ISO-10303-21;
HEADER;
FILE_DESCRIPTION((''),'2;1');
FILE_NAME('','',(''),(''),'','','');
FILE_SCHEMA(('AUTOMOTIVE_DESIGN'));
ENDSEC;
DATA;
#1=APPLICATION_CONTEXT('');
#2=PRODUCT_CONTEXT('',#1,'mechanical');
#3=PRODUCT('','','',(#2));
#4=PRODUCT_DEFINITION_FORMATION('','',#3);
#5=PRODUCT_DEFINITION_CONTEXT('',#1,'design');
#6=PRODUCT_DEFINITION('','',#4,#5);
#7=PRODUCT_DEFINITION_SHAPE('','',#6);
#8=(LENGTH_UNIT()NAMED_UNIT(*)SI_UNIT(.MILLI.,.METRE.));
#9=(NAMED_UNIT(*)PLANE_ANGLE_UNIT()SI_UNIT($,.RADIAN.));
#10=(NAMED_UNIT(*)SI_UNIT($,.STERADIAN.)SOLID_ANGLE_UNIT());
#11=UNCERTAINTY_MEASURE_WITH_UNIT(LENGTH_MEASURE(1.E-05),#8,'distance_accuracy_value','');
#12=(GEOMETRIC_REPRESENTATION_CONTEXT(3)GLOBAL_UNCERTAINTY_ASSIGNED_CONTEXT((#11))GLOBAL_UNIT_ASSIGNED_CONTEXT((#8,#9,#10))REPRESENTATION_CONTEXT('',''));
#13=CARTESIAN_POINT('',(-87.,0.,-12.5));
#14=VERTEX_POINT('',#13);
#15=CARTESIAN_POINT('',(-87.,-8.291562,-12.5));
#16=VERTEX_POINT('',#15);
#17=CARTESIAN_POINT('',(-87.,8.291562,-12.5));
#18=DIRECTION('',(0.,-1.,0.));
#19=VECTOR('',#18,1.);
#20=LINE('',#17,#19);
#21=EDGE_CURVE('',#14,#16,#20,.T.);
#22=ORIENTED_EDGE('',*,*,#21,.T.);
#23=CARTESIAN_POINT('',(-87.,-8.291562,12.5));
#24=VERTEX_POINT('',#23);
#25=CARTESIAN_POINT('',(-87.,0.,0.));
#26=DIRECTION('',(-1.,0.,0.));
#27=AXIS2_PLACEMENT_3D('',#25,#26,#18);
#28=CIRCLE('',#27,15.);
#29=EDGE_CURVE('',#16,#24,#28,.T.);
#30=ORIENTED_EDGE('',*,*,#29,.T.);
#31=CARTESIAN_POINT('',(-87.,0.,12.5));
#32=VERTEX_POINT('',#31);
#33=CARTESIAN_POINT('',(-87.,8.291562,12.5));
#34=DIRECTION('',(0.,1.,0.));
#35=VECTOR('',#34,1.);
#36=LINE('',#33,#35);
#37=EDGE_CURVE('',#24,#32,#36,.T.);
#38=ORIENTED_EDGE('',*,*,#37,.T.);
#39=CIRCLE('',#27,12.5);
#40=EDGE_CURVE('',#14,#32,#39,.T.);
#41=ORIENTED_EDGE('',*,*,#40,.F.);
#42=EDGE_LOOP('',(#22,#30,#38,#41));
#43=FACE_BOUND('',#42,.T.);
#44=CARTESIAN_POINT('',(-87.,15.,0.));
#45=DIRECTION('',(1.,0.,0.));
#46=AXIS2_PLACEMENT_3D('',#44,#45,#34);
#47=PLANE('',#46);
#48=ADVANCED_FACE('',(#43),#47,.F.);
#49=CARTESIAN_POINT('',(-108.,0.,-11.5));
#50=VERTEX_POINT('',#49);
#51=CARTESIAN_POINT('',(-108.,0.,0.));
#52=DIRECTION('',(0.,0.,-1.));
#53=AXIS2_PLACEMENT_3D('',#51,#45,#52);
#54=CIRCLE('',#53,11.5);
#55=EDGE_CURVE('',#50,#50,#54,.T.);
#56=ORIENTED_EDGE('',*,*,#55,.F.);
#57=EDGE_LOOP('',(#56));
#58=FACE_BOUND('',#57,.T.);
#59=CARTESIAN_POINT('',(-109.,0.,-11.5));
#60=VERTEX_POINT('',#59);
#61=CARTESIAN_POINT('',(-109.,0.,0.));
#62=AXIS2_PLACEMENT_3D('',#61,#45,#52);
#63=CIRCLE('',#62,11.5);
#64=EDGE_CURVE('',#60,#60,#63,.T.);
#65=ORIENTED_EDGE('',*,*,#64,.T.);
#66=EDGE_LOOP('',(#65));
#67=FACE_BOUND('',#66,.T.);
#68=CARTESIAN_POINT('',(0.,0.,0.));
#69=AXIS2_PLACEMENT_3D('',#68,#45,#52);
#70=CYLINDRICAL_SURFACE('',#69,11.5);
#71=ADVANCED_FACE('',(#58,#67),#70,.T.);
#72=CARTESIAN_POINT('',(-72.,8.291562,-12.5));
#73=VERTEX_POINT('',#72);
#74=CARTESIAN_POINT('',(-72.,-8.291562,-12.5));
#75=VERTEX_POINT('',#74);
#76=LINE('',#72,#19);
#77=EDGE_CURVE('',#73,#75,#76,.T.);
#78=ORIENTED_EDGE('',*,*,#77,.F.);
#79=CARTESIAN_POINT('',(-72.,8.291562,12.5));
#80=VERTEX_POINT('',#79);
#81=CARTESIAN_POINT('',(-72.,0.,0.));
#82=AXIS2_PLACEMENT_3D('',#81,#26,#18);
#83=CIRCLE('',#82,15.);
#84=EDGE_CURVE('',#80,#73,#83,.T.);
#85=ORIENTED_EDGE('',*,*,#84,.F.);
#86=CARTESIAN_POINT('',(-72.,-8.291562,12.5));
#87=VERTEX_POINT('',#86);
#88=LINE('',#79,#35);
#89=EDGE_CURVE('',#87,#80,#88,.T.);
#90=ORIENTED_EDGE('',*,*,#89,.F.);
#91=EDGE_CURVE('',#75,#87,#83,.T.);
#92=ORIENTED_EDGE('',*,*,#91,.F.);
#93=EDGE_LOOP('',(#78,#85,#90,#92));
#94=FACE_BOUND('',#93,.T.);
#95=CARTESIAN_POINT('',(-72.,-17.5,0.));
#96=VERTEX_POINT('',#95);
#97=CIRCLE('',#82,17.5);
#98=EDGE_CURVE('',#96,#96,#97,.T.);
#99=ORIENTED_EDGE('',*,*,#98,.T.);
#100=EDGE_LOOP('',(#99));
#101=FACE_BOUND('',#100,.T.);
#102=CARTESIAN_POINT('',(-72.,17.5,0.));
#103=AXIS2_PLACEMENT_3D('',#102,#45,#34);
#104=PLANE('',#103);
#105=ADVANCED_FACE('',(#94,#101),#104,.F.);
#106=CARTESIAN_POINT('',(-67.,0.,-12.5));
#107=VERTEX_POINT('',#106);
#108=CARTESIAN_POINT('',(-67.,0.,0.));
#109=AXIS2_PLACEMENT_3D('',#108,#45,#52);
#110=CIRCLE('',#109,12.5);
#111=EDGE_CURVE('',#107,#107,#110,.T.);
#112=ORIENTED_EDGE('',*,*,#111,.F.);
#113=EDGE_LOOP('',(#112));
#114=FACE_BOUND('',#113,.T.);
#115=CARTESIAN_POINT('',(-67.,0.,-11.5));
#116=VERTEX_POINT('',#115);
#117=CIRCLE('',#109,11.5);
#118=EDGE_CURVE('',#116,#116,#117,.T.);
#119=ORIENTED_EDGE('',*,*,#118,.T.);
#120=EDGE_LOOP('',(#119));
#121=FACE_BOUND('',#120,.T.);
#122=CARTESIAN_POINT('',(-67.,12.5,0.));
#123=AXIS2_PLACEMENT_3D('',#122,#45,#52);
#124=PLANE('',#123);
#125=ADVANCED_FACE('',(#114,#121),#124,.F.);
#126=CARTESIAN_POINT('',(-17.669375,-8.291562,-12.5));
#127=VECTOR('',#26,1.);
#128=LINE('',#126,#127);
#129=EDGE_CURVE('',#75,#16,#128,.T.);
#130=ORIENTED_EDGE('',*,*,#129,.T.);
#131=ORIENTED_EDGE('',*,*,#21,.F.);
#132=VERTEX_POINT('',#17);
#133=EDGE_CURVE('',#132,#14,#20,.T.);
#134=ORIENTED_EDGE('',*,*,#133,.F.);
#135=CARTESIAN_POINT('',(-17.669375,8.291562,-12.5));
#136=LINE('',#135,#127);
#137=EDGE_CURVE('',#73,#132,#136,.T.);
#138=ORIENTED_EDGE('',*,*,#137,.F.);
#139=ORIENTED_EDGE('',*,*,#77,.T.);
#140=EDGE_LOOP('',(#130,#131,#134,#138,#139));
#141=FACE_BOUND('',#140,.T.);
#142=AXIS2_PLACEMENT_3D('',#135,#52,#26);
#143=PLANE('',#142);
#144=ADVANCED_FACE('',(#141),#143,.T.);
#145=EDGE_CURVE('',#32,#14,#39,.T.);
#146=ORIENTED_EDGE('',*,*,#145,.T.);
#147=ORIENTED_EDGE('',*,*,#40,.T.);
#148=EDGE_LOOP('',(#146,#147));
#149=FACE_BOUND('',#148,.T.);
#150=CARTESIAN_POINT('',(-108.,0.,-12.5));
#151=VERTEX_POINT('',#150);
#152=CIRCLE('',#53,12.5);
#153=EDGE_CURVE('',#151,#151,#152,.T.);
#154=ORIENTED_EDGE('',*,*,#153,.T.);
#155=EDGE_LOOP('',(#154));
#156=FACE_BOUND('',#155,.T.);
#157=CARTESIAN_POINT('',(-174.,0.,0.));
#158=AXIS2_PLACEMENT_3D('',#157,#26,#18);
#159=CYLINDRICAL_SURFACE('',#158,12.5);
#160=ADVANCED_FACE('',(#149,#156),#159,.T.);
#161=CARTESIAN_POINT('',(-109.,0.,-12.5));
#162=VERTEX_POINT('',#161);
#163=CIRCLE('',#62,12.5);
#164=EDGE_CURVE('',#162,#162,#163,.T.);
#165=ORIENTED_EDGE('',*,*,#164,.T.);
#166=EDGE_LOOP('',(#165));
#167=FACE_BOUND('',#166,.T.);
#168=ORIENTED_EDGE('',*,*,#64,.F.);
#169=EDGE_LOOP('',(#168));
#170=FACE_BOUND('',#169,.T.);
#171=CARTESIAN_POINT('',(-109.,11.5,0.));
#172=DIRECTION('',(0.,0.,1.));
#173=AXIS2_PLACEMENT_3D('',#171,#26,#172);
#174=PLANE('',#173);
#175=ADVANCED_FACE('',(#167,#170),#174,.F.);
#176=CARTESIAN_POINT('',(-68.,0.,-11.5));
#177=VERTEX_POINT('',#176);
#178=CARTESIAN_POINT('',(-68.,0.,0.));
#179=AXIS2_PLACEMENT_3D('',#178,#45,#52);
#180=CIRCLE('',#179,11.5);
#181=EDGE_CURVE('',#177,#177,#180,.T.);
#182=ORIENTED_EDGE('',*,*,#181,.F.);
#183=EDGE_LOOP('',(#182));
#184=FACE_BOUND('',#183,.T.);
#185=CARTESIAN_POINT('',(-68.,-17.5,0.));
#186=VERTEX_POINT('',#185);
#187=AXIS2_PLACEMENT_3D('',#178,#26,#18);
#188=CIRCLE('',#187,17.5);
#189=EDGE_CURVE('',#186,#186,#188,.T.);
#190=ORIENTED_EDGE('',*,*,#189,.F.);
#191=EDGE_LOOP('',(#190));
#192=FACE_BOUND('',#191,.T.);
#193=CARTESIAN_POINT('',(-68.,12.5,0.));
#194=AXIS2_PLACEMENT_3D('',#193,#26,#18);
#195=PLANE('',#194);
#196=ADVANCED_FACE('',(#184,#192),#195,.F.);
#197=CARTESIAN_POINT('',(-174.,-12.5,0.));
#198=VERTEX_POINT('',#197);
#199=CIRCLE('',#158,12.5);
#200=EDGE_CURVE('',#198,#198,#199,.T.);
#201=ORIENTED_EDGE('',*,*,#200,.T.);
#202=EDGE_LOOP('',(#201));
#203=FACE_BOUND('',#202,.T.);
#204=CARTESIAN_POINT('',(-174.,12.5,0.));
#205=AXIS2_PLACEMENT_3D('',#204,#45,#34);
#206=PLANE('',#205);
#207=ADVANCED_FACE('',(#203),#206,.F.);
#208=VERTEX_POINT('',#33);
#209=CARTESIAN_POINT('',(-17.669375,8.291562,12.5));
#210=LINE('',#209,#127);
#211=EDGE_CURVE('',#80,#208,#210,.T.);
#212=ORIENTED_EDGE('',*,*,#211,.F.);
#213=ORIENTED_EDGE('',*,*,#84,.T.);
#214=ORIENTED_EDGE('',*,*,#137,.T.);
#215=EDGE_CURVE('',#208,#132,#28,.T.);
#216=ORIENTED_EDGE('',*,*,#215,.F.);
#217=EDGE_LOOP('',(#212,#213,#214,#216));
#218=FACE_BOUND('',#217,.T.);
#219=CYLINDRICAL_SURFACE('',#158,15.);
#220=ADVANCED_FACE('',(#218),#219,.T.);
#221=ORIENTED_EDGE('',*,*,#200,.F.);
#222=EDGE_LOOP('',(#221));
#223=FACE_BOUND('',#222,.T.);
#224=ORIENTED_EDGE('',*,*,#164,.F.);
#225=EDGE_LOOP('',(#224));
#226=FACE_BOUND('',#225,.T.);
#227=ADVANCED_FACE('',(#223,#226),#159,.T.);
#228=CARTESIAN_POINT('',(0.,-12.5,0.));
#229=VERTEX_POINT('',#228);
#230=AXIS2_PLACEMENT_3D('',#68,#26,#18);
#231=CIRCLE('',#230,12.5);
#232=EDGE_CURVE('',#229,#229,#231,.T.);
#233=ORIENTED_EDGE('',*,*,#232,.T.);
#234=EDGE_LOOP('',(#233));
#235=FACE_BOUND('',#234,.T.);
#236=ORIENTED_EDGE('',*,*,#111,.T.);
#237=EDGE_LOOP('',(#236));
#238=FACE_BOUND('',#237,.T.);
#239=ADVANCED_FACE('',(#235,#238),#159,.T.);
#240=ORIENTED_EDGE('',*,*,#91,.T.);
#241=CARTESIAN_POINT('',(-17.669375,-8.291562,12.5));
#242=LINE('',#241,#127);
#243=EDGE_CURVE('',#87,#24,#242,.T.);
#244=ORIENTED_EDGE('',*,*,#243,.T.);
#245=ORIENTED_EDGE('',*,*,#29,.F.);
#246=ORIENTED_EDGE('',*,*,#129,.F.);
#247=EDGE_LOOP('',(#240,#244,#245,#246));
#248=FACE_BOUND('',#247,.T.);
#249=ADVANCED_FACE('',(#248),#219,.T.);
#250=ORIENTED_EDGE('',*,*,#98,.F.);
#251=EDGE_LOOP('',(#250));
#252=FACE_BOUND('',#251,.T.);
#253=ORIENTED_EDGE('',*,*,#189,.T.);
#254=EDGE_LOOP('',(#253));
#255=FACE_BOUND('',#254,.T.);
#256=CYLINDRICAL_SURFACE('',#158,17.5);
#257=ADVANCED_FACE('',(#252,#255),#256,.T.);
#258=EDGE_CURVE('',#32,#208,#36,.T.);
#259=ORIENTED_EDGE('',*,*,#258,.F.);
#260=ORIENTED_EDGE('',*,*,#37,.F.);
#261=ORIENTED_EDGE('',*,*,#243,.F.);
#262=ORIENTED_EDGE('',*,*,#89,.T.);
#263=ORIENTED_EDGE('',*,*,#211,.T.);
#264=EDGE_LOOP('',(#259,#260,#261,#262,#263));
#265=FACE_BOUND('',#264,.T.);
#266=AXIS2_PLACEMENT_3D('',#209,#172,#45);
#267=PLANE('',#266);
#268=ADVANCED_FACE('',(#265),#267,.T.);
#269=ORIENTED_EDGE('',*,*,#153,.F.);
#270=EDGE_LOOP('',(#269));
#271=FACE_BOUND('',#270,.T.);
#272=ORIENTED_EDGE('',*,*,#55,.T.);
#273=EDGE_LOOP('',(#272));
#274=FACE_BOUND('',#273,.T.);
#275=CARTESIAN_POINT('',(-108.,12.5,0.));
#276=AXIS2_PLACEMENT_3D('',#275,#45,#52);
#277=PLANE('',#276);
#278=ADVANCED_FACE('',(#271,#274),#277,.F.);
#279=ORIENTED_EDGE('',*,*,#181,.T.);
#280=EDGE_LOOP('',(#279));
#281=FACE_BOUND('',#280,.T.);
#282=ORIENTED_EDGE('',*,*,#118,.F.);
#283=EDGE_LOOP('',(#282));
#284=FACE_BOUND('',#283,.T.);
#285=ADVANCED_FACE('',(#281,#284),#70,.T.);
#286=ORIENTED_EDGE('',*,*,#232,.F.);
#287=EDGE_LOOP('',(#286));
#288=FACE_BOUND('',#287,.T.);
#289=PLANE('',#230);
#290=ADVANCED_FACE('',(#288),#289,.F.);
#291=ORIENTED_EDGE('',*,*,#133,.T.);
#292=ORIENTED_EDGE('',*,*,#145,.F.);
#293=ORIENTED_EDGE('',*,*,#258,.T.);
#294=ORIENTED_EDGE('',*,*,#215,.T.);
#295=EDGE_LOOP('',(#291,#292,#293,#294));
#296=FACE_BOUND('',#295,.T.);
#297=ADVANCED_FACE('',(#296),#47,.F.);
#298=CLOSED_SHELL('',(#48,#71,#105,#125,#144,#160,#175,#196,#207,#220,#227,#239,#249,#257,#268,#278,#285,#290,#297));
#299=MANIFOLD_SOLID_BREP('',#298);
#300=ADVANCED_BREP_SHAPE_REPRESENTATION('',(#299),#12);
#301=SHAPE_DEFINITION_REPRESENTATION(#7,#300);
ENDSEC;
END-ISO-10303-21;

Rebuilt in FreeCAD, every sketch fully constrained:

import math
import FreeCAD as App
import Part
import Sketcher
from FreeCAD import Vector
Q = App.Units.Quantity


def add_polygon(sketch, points):
    """Adds a closed chain of lines whose ends are joined by coincident constraints."""
    first, n = sketch.GeometryCount, len(points)
    for a, b in zip(points, points[1:] + points[:1]):
        sketch.addGeometry(Part.LineSegment(App.Vector(*a, 0), App.Vector(*b, 0)), False)
    for i in range(n):
        sketch.addConstraint(Sketcher.Constraint("Coincident", first + i, 2, first + (i + 1) % n, 1))

doc = App.newDocument("Part")
body = doc.addObject("PartDesign::Body", "Body")

sketch1 = body.newObject("Sketcher::SketchObject", "Sketch")
sketch1.AttachmentSupport = (doc.getObject("XY_Plane"), [""])
sketch1.MapMode = "FlatFace"
add_polygon(sketch1, [(0, 0), (0, 12.5), (-68, 12.5), (-68, 17.5), (-72, 17.5), (-72, 15), (-87, 15), (-87, 12.5), (-174, 12.5), (-174, 0)])
sketch1.addConstraint([
    Sketcher.Constraint("Vertical", 0),
    Sketcher.Constraint("Horizontal", 1),
    Sketcher.Constraint("Vertical", 2),
    Sketcher.Constraint("Horizontal", 3),
    Sketcher.Constraint("Vertical", 4),
    Sketcher.Constraint("Horizontal", 5),
    Sketcher.Constraint("Vertical", 6),
    Sketcher.Constraint("Horizontal", 7),
    Sketcher.Constraint("Vertical", 8),
    Sketcher.Constraint("Horizontal", 9),
    Sketcher.Constraint("Coincident", 9, 2, -1, 1),
    Sketcher.Constraint("Horizontal", 1, 2, 6, 2),
    Sketcher.Constraint("Equal", 4, 6),
    Sketcher.Constraint("DistanceX", 1, 2, 1, 1, Q("68 mm")),
    Sketcher.Constraint("DistanceX", 3, 2, 3, 1, Q("4 mm")),
    Sketcher.Constraint("DistanceX", 5, 2, 5, 1, Q("15 mm")),
    Sketcher.Constraint("DistanceX", 7, 2, 7, 1, Q("87 mm")),
    Sketcher.Constraint("DistanceY", 2, 1, 2, 2, Q("5 mm")),
    Sketcher.Constraint("DistanceY", 0, 1, 0, 2, Q("12.5 mm")),
])
revolution = body.newObject("PartDesign::Revolution", "Revolution")
revolution.Profile = sketch1
revolution.ReferenceAxis = (sketch1, ["H_Axis"])
revolution.Angle = 360

sketch2 = body.newObject("Sketcher::SketchObject", "Sketch001")
sketch2.AttachmentSupport = (doc.getObject("XY_Plane"), [""])
sketch2.MapMode = "FlatFace"
add_polygon(sketch2, [(-68, 12.5), (-68, 11.5), (-67, 11.5), (-67, 12.5)])
add_polygon(sketch2, [(-109, 12.5), (-109, 11.5), (-108, 11.5), (-108, 12.5)])
sketch2.addConstraint([
    Sketcher.Constraint("Vertical", 0),
    Sketcher.Constraint("Horizontal", 1),
    Sketcher.Constraint("Vertical", 2),
    Sketcher.Constraint("Horizontal", 3),
    Sketcher.Constraint("Vertical", 4),
    Sketcher.Constraint("Horizontal", 5),
    Sketcher.Constraint("Vertical", 6),
    Sketcher.Constraint("Horizontal", 7),
    Sketcher.Constraint("Horizontal", 1, 2, 4, 2),
    Sketcher.Constraint("Horizontal", 3, 2, 6, 2),
    Sketcher.Constraint("Equal", 3, 5),
    Sketcher.Constraint("Equal", 7, 0),
    Sketcher.Constraint("DistanceX", 1, 1, 1, 2, Q("1 mm")),
    Sketcher.Constraint("DistanceX", 0, 2, -1, 1, Q("68 mm")),
    Sketcher.Constraint("DistanceX", 4, 2, -1, 1, Q("109 mm")),
    Sketcher.Constraint("DistanceY", -1, 1, 0, 2, Q("11.5 mm")),
])
groove = body.newObject("PartDesign::Groove", "Groove")
groove.Profile = sketch2
groove.ReferenceAxis = (sketch2, ["H_Axis"])
groove.Angle = 360

sketch3 = body.newObject("Sketcher::SketchObject", "Sketch002")
sketch3.AttachmentSupport = (doc.getObject("YZ_Plane"), [""])
sketch3.MapMode = "FlatFace"
sketch3.AttachmentOffset = App.Placement(Vector(0, 0, -87), App.Rotation())
add_polygon(sketch3, [(37, -37), (-37, -37), (-37, 37), (37, 37)])
sketch3.addGeometry(Part.LineSegment(Vector(-8, -12, 0), Vector(8, -12, 0)), False)
sketch3.addGeometry(Part.ArcOfCircle(Part.Circle(Vector(0, 0, 0), Vector(0, 0, 1), 15), math.radians(-56), math.radians(56)), False)
sketch3.addGeometry(Part.LineSegment(Vector(8, 12, 0), Vector(-8, 12, 0)), False)
sketch3.addGeometry(Part.ArcOfCircle(Part.Circle(Vector(0, 0, 0), Vector(0, 0, 1), 15), math.radians(124), math.radians(236)), False)
sketch3.addConstraint([
    Sketcher.Constraint("Coincident", 4, 2, 5, 1),
    Sketcher.Constraint("Coincident", 5, 2, 6, 1),
    Sketcher.Constraint("Coincident", 6, 2, 7, 1),
    Sketcher.Constraint("Coincident", 7, 2, 4, 1),
    Sketcher.Constraint("Horizontal", 0),
    Sketcher.Constraint("Vertical", 1),
    Sketcher.Constraint("Horizontal", 2),
    Sketcher.Constraint("Vertical", 3),
    Sketcher.Constraint("Horizontal", 4),
    Sketcher.Constraint("Horizontal", 6),
    Sketcher.Constraint("Coincident", 5, 3, -1, 1),
    Sketcher.Constraint("Coincident", 7, 3, -1, 1),
    Sketcher.Constraint("Equal", 5, 7),
    Sketcher.Constraint("Symmetric", 0, 2, 2, 2, -1, 1),
    Sketcher.Constraint("Vertical", 4, 2, 5, 2),
    Sketcher.Constraint("Equal", 2, 1),
    Sketcher.Constraint("Radius", 5, Q("15 mm")),
    Sketcher.Constraint("DistanceY", 4, 2, 5, 2, Q("25 mm")),
    Sketcher.Constraint("DistanceX", 0, 2, 0, 1, Q("73.18 mm")),
])
pocket1 = body.newObject("PartDesign::Pocket", "Pocket")
pocket1.Profile = sketch3
pocket1.Length = 15
pocket1.Reversed = True

doc.recompute()
